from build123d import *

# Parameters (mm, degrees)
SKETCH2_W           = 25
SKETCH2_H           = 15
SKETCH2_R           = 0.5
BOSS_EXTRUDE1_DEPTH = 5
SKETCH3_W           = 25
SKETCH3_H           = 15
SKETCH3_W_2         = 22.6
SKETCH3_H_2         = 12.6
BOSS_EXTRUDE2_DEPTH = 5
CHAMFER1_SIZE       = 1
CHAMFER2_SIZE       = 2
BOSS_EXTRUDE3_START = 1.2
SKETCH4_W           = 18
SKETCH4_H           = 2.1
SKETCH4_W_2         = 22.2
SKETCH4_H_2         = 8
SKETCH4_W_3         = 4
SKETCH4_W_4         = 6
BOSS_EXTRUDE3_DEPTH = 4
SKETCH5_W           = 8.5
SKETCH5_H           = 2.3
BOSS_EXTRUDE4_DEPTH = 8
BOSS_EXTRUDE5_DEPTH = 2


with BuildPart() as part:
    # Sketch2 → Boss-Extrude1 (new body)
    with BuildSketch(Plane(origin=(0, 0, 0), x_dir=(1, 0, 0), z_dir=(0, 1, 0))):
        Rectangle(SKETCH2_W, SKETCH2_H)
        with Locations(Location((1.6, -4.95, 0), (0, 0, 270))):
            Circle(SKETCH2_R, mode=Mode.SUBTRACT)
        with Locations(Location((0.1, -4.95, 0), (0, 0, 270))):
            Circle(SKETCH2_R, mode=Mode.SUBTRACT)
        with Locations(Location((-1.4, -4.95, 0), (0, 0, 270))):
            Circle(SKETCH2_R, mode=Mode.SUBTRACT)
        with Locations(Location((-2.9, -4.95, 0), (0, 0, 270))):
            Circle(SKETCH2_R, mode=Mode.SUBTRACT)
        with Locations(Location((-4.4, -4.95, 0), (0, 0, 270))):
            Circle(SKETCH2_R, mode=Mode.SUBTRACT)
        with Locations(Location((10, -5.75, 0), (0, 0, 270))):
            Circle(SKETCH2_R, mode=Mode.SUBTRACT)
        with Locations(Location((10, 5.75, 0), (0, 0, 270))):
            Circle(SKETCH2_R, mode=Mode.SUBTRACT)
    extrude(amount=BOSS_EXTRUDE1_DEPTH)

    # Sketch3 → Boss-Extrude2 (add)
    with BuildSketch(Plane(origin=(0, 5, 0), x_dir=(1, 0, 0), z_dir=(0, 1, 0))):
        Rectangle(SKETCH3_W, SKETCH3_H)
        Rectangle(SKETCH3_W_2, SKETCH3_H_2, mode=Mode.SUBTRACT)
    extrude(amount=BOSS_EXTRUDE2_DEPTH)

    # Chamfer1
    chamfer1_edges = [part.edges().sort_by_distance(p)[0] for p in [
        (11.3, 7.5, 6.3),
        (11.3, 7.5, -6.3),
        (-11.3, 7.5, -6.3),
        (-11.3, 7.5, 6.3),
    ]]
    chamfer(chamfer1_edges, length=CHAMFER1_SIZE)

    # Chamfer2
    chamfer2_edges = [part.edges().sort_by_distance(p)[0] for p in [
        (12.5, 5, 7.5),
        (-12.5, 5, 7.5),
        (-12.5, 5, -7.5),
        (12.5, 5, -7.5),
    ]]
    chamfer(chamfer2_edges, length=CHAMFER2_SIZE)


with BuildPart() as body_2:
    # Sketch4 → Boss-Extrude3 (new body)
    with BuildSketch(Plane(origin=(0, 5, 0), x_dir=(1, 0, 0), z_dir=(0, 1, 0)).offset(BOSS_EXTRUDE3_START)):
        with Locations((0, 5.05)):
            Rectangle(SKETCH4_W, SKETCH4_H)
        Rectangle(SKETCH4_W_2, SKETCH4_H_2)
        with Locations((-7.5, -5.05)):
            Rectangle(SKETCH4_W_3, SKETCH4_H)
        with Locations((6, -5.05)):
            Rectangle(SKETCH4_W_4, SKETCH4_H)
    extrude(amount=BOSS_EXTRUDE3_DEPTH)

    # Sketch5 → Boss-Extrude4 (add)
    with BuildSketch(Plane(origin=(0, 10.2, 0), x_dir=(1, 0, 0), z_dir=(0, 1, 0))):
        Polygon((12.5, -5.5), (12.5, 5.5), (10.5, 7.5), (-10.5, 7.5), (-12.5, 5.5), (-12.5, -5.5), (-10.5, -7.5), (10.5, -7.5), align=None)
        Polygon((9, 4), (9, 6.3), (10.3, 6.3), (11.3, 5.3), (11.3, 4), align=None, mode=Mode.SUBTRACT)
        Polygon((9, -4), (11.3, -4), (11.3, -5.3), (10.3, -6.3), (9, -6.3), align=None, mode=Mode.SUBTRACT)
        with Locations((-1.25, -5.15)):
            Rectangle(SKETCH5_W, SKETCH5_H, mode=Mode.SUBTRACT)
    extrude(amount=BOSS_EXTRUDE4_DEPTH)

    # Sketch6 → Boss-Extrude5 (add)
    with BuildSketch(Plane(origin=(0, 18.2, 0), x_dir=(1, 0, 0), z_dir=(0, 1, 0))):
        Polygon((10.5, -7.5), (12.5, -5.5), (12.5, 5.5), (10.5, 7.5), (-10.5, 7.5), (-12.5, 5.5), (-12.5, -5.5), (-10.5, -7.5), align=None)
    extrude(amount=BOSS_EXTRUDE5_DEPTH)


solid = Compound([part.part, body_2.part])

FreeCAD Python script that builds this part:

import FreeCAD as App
import Part
import Sketcher

V = App.Vector


def edges_at(feature, points):
    """Names of the edges that pass closest to the given points."""
    edges = feature.Shape.Edges
    near = lambda p: min(range(len(edges)), key=lambda i: edges[i].distToShape(Part.Vertex(*p))[0])
    return sorted({f"Edge{near(p) + 1}" for p in points})

doc = App.newDocument("Part")
body = doc.addObject("PartDesign::Body", "Body")

sketch1 = body.newObject("Sketcher::SketchObject", "Sketch")
sketch1.AttachmentSupport = (doc.getObject("XZ_Plane"), [""])
sketch1.MapMode = "FlatFace"
sketch1.addGeometry(Part.LineSegment(V(-12.5, -7.5, 0), V(-12.5, 7.5, 0)), False)
sketch1.addGeometry(Part.LineSegment(V(-12.5, 7.5, 0), V(12.5, 7.5, 0)), False)
sketch1.addGeometry(Part.LineSegment(V(12.5, 7.5, 0), V(12.5, -7.5, 0)), False)
sketch1.addGeometry(Part.LineSegment(V(12.5, -7.5, 0), V(-12.5, -7.5, 0)), False)
sketch1.addGeometry(Part.Circle(V(-4.4, 5, 0), V(0, 0, 1), 0.5), False)
sketch1.addGeometry(Part.Circle(V(-2.9, 5, 0), V(0, 0, 1), 0.5), False)
sketch1.addGeometry(Part.Circle(V(-1.4, 5, 0), V(0, 0, 1), 0.5), False)
sketch1.addGeometry(Part.Circle(V(0.1, 5, 0), V(0, 0, 1), 0.5), False)
sketch1.addGeometry(Part.Circle(V(1.6, 5, 0), V(0, 0, 1), 0.5), False)
sketch1.addGeometry(Part.Circle(V(10, 5.8, 0), V(0, 0, 1), 0.5), False)
sketch1.addGeometry(Part.Circle(V(10, -5.8, 0), V(0, 0, 1), 0.5), False)
sketch1.addConstraint(Sketcher.Constraint("Coincident", 0, 2, 1, 1))
sketch1.addConstraint(Sketcher.Constraint("Coincident", 1, 2, 2, 1))
sketch1.addConstraint(Sketcher.Constraint("Coincident", 2, 2, 3, 1))
sketch1.addConstraint(Sketcher.Constraint("Coincident", 3, 2, 0, 1))
sketch1.addConstraint(Sketcher.Constraint("Vertical", 0))
sketch1.addConstraint(Sketcher.Constraint("Horizontal", 1))
sketch1.addConstraint(Sketcher.Constraint("Vertical", 2))
sketch1.addConstraint(Sketcher.Constraint("Horizontal", 3))
sketch1.addConstraint(Sketcher.Constraint("Equal", 4, 5))
sketch1.addConstraint(Sketcher.Constraint("Equal", 5, 6))
sketch1.addConstraint(Sketcher.Constraint("Equal", 6, 7))
sketch1.addConstraint(Sketcher.Constraint("Equal", 7, 8))
sketch1.addConstraint(Sketcher.Constraint("Equal", 8, 9))
sketch1.addConstraint(Sketcher.Constraint("Equal", 9, 10))
sketch1.addConstraint(Sketcher.Constraint("Symmetric", 0, 2, 2, 2, -1, 1))
sketch1.addConstraint(Sketcher.Constraint("Symmetric", 9, 3, 10, 3, -1))
sketch1.addConstraint(Sketcher.Constraint("Horizontal", 4, 3, 5, 3))
sketch1.addConstraint(Sketcher.Constraint("Horizontal", 5, 3, 6, 3))
sketch1.addConstraint(Sketcher.Constraint("Horizontal", 6, 3, 7, 3))
sketch1.addConstraint(Sketcher.Constraint("Horizontal", 7, 3, 8, 3))
sketch1.addConstraint(Sketcher.Constraint("Diameter", 4, 1.0))
sketch1.addConstraint(Sketcher.Constraint("DistanceX", 1, 1, 1, 2, 25.0))
sketch1.addConstraint(Sketcher.Constraint("DistanceY", 0, 1, 0, 2, 15.0))
sketch1.addConstraint(Sketcher.Constraint("DistanceX", -1, 1, 9, 3, 10.0))
sketch1.addConstraint(Sketcher.Constraint("DistanceX", 4, 3, 6, 3, 3.0))
sketch1.addConstraint(Sketcher.Constraint("DistanceX", 5, 3, 7, 3, 3.0))
sketch1.addConstraint(Sketcher.Constraint("DistanceX", 6, 3, 8, 3, 3.0))
sketch1.addConstraint(Sketcher.Constraint("DistanceX", 4, 3, -1, 1, 4.4))
sketch1.addConstraint(Sketcher.Constraint("DistanceX", 5, 3, -1, 1, 2.9))
sketch1.addConstraint(Sketcher.Constraint("DistanceY", 8, 3, 9, 3, 0.8))
sketch1.addConstraint(Sketcher.Constraint("DistanceY", 10, 3, 9, 3, 11.5))
pad1 = body.newObject("PartDesign::Pad", "Pad")
pad1.Profile = sketch1
pad1.Length = 5
pad1.Reversed = True

sketch2 = body.newObject("Sketcher::SketchObject", "Sketch001")
sketch2.AttachmentSupport = (doc.getObject("XZ_Plane"), [""])
sketch2.MapMode = "FlatFace"
sketch2.AttachmentOffset = App.Placement(V(0, 0, -5), App.Rotation())
sketch2.addGeometry(Part.LineSegment(V(-12, -8, 0), V(-12, 8, 0)), False)
sketch2.addGeometry(Part.LineSegment(V(-12, 8, 0), V(12, 8, 0)), False)
sketch2.addGeometry(Part.LineSegment(V(12, 8, 0), V(12, -8, 0)), False)
sketch2.addGeometry(Part.LineSegment(V(12, -8, 0), V(-12, -8, 0)), False)
sketch2.addGeometry(Part.LineSegment(V(11, 6, 0), V(-11, 6, 0)), False)
sketch2.addGeometry(Part.LineSegment(V(-11, 6, 0), V(-11, -6, 0)), False)
sketch2.addGeometry(Part.LineSegment(V(-11, -6, 0), V(11, -6, 0)), False)
sketch2.addGeometry(Part.LineSegment(V(11, -6, 0), V(11, 6, 0)), False)
sketch2.addConstraint(Sketcher.Constraint("Coincident", 0, 2, 1, 1))
sketch2.addConstraint(Sketcher.Constraint("Coincident", 1, 2, 2, 1))
sketch2.addConstraint(Sketcher.Constraint("Coincident", 2, 2, 3, 1))
sketch2.addConstraint(Sketcher.Constraint("Coincident", 3, 2, 0, 1))
sketch2.addConstraint(Sketcher.Constraint("Coincident", 4, 2, 5, 1))
sketch2.addConstraint(Sketcher.Constraint("Coincident", 5, 2, 6, 1))
sketch2.addConstraint(Sketcher.Constraint("Coincident", 6, 2, 7, 1))
sketch2.addConstraint(Sketcher.Constraint("Coincident", 7, 2, 4, 1))
sketch2.addConstraint(Sketcher.Constraint("Vertical", 0))
sketch2.addConstraint(Sketcher.Constraint("Horizontal", 1))
sketch2.addConstraint(Sketcher.Constraint("Vertical", 2))
sketch2.addConstraint(Sketcher.Constraint("Horizontal", 3))
sketch2.addConstraint(Sketcher.Constraint("Horizontal", 4))
sketch2.addConstraint(Sketcher.Constraint("Vertical", 5))
sketch2.addConstraint(Sketcher.Constraint("Horizontal", 6))
sketch2.addConstraint(Sketcher.Constraint("Vertical", 7))
sketch2.addConstraint(Sketcher.Constraint("Symmetric", 0, 2, 2, 2, -1, 1))
sketch2.addConstraint(Sketcher.Constraint("Symmetric", 4, 2, 6, 2, -1, 1))
sketch2.addConstraint(Sketcher.Constraint("DistanceX", 1, 1, 1, 2, 25.0))
sketch2.addConstraint(Sketcher.Constraint("DistanceY", 0, 1, 0, 2, 15.0))
sketch2.addConstraint(Sketcher.Constraint("DistanceX", 4, 2, 4, 1, 22.6))
sketch2.addConstraint(Sketcher.Constraint("DistanceY", 5, 2, 5, 1, 12.6))
pad2 = body.newObject("PartDesign::Pad", "Pad001")
pad2.Profile = sketch2
pad2.Length = 5
pad2.Reversed = True
doc.recompute()

chamfer = body.newObject("PartDesign::Chamfer", "Chamfer")
chamfer.Base = (pad2, edges_at(pad2, [
    (11.3, 7.5, 6.3),
    (11.3, 7.5, -6.3),
    (-11.3, 7.5, -6.3),
    (-11.3, 7.5, 6.3),
]))
chamfer.Size = 1
doc.recompute()

chamfer2 = body.newObject("PartDesign::Chamfer", "Chamfer001")
chamfer2.Base = (chamfer, edges_at(chamfer, [
    (12.5, 5, 7.5),
    (-12.5, 5, 7.5),
    (-12.5, 5, -7.5),
    (12.5, 5, -7.5),
]))
chamfer2.Size = 2
body2 = doc.addObject("PartDesign::Body", "Body001")

sketch3 = body2.newObject("Sketcher::SketchObject", "Sketch002")
sketch3.AttachmentSupport = (doc.getObject("XZ_Plane001"), [""])
sketch3.MapMode = "FlatFace"
sketch3.AttachmentOffset = App.Placement(V(0, 0, -6.2), App.Rotation())
sketch3.addGeometry(Part.LineSegment(V(-9, -6.1, 0), V(-9, -4, 0)), False)
sketch3.addGeometry(Part.LineSegment(V(-9, -4, 0), V(-11.1, -4, 0)), False)
sketch3.addGeometry(Part.LineSegment(V(-11.1, -4, 0), V(-11.1, 4, 0)), False)
sketch3.addGeometry(Part.LineSegment(V(-11.1, 4, 0), V(-9.5, 4, 0)), False)
sketch3.addGeometry(Part.LineSegment(V(-9.5, 4, 0), V(-9.5, 6.1, 0)), False)
sketch3.addGeometry(Part.LineSegment(V(-9.5, 6.1, 0), V(-5.5, 6.1, 0)), False)
sketch3.addGeometry(Part.LineSegment(V(-5.5, 6.1, 0), V(-5.5, 4, 0)), False)
sketch3.addGeometry(Part.LineSegment(V(-5.5, 4, 0), V(3, 4, 0)), False)
sketch3.addGeometry(Part.LineSegment(V(3, 4, 0), V(3, 6.1, 0)), False)
sketch3.addGeometry(Part.LineSegment(V(3, 6.1, 0), V(9, 6.1, 0)), False)
sketch3.addGeometry(Part.LineSegment(V(9, 6.1, 0), V(9, 4, 0)), False)
sketch3.addGeometry(Part.LineSegment(V(9, 4, 0), V(11.1, 4, 0)), False)
sketch3.addGeometry(Part.LineSegment(V(11.1, 4, 0), V(11.1, -4, 0)), False)
sketch3.addGeometry(Part.LineSegment(V(11.1, -4, 0), V(9, -4, 0)), False)
sketch3.addGeometry(Part.LineSegment(V(9, -4, 0), V(9, -6.1, 0)), False)
sketch3.addGeometry(Part.LineSegment(V(9, -6.1, 0), V(-9, -6.1, 0)), False)
sketch3.addConstraint(Sketcher.Constraint("Coincident", 0, 2, 1, 1))
sketch3.addConstraint(Sketcher.Constraint("Coincident", 1, 2, 2, 1))
sketch3.addConstraint(Sketcher.Constraint("Coincident", 2, 2, 3, 1))
sketch3.addConstraint(Sketcher.Constraint("Coincident", 3, 2, 4, 1))
sketch3.addConstraint(Sketcher.Constraint("Coincident", 4, 2, 5, 1))
sketch3.addConstraint(Sketcher.Constraint("Coincident", 5, 2, 6, 1))
sketch3.addConstraint(Sketcher.Constraint("Coincident", 6, 2, 7, 1))
sketch3.addConstraint(Sketcher.Constraint("Coincident", 7, 2, 8, 1))
sketch3.addConstraint(Sketcher.Constraint("Coincident", 8, 2, 9, 1))
sketch3.addConstraint(Sketcher.Constraint("Coincident", 9, 2, 10, 1))
sketch3.addConstraint(Sketcher.Constraint("Coincident", 10, 2, 11, 1))
sketch3.addConstraint(Sketcher.Constraint("Coincident", 11, 2, 12, 1))
sketch3.addConstraint(Sketcher.Constraint("Coincident", 12, 2, 13, 1))
sketch3.addConstraint(Sketcher.Constraint("Coincident", 13, 2, 14, 1))
sketch3.addConstraint(Sketcher.Constraint("Coincident", 14, 2, 15, 1))
sketch3.addConstraint(Sketcher.Constraint("Coincident", 15, 2, 0, 1))
sketch3.addConstraint(Sketcher.Constraint("Vertical", 0))
sketch3.addConstraint(Sketcher.Constraint("Horizontal", 1))
sketch3.addConstraint(Sketcher.Constraint("Vertical", 2))
sketch3.addConstraint(Sketcher.Constraint("Horizontal", 3))
sketch3.addConstraint(Sketcher.Constraint("Vertical", 4))
sketch3.addConstraint(Sketcher.Constraint("Horizontal", 5))
sketch3.addConstraint(Sketcher.Constraint("Vertical", 6))
sketch3.addConstraint(Sketcher.Constraint("Horizontal", 7))
sketch3.addConstraint(Sketcher.Constraint("Vertical", 8))
sketch3.addConstraint(Sketcher.Constraint("Horizontal", 9))
sketch3.addConstraint(Sketcher.Constraint("Vertical", 10))
sketch3.addConstraint(Sketcher.Constraint("Horizontal", 11))
sketch3.addConstraint(Sketcher.Constraint("Vertical", 12))
sketch3.addConstraint(Sketcher.Constraint("Horizontal", 13))
sketch3.addConstraint(Sketcher.Constraint("Vertical", 14))
sketch3.addConstraint(Sketcher.Constraint("Horizontal", 15))
sketch3.addConstraint(Sketcher.Constraint("Symmetric", 0, 2, 10, 2, -1, 1))
sketch3.addConstraint(Sketcher.Constraint("Symmetric", 2, 2, 12, 2, -1, 1))
sketch3.addConstraint(Sketcher.Constraint("Symmetric", 0, 2, 13, 2, -2))
sketch3.addConstraint(Sketcher.Constraint("Horizontal", 3, 2, 6, 2))
sketch3.addConstraint(Sketcher.Constraint("Horizontal", 5, 2, 8, 2))
sketch3.addConstraint(Sketcher.Constraint("Equal", 13, 0))
sketch3.addConstraint(Sketcher.Constraint("Equal", 0, 4))
sketch3.addConstraint(Sketcher.Constraint("DistanceX", 5, 1, 5, 2, 4.0))
sketch3.addConstraint(Sketcher.Constraint("DistanceX", 9, 1, 9, 2, 6.0))
sketch3.addConstraint(Sketcher.Constraint("DistanceX", 15, 2, 15, 1, 18.0))
sketch3.addConstraint(Sketcher.Constraint("DistanceY", 2, 1, 2, 2, 8.0))
sketch3.addConstraint(Sketcher.Constraint("DistanceX", 1, 2, 1, 1, 2.1))
sketch3.addConstraint(Sketcher.Constraint("DistanceX", 3, 1, 3, 2, 1.6))
pad3 = body2.newObject("PartDesign::Pad", "Pad002")
pad3.Profile = sketch3
pad3.Length = 4
pad3.Reversed = True

sketch4 = body2.newObject("Sketcher::SketchObject", "Sketch003")
sketch4.AttachmentSupport = (doc.getObject("XZ_Plane001"), [""])
sketch4.MapMode = "FlatFace"
sketch4.AttachmentOffset = App.Placement(V(0, 0, -10.2), App.Rotation())
sketch4.addGeometry(Part.LineSegment(V(12.5, 5.5, 0), V(12.5, -5.5, 0)), False)
sketch4.addGeometry(Part.LineSegment(V(12.5, -5.5, 0), V(10.5, -7.5, 0)), False)
sketch4.addGeometry(Part.LineSegment(V(10.5, -7.5, 0), V(-10.5, -7.5, 0)), False)
sketch4.addGeometry(Part.LineSegment(V(-10.5, -7.5, 0), V(-12.5, -5.5, 0)), False)
sketch4.addGeometry(Part.LineSegment(V(-12.5, -5.5, 0), V(-12.5, 5.5, 0)), False)
sketch4.addGeometry(Part.LineSegment(V(-12.5, 5.5, 0), V(-10.5, 7.5, 0)), False)
sketch4.addGeometry(Part.LineSegment(V(-10.5, 7.5, 0), V(10.5, 7.5, 0)), False)
sketch4.addGeometry(Part.LineSegment(V(10.5, 7.5, 0), V(12.5, 5.5, 0)), False)
sketch4.addGeometry(Part.LineSegment(V(3, 6.3, 0), V(-5.5, 6.3, 0)), False)
sketch4.addGeometry(Part.LineSegment(V(-5.5, 6.3, 0), V(-5.5, 4, 0)), False)
sketch4.addGeometry(Part.LineSegment(V(-5.5, 4, 0), V(3, 4, 0)), False)
sketch4.addGeometry(Part.LineSegment(V(3, 4, 0), V(3, 6.3, 0)), False)
sketch4.addGeometry(Part.LineSegment(V(9, 6.3, 0), V(9, 4, 0)), False)
sketch4.addGeometry(Part.LineSegment(V(9, 4, 0), V(11.3, 4, 0)), False)
sketch4.addGeometry(Part.LineSegment(V(11.3, 4, 0), V(11.3, 5.3, 0)), False)
sketch4.addGeometry(Part.LineSegment(V(11.3, 5.3, 0), V(10.3, 6.3, 0)), False)
sketch4.addGeometry(Part.LineSegment(V(10.3, 6.3, 0), V(9, 6.3, 0)), False)
sketch4.addGeometry(Part.LineSegment(V(11.3, -4, 0), V(9, -4, 0)), False)
sketch4.addGeometry(Part.LineSegment(V(9, -4, 0), V(9, -6.3, 0)), False)
sketch4.addGeometry(Part.LineSegment(V(9, -6.3, 0), V(10.3, -6.3, 0)), False)
sketch4.addGeometry(Part.LineSegment(V(10.3, -6.3, 0), V(11.3, -5.3, 0)), False)
sketch4.addGeometry(Part.LineSegment(V(11.3, -5.3, 0), V(11.3, -4, 0)), False)
sketch4.addConstraint(Sketcher.Constraint("Coincident", 0, 2, 1, 1))
sketch4.addConstraint(Sketcher.Constraint("Coincident", 1, 2, 2, 1))
sketch4.addConstraint(Sketcher.Constraint("Coincident", 2, 2, 3, 1))
sketch4.addConstraint(Sketcher.Constraint("Coincident", 3, 2, 4, 1))
sketch4.addConstraint(Sketcher.Constraint("Coincident", 4, 2, 5, 1))
sketch4.addConstraint(Sketcher.Constraint("Coincident", 5, 2, 6, 1))
sketch4.addConstraint(Sketcher.Constraint("Coincident", 6, 2, 7, 1))
sketch4.addConstraint(Sketcher.Constraint("Coincident", 7, 2, 0, 1))
sketch4.addConstraint(Sketcher.Constraint("Coincident", 8, 2, 9, 1))
sketch4.addConstraint(Sketcher.Constraint("Coincident", 9, 2, 10, 1))
sketch4.addConstraint(Sketcher.Constraint("Coincident", 10, 2, 11, 1))
sketch4.addConstraint(Sketcher.Constraint("Coincident", 11, 2, 8, 1))
sketch4.addConstraint(Sketcher.Constraint("Coincident", 12, 2, 13, 1))
sketch4.addConstraint(Sketcher.Constraint("Coincident", 13, 2, 14, 1))
sketch4.addConstraint(Sketcher.Constraint("Coincident", 14, 2, 15, 1))
sketch4.addConstraint(Sketcher.Constraint("Coincident", 15, 2, 16, 1))
sketch4.addConstraint(Sketcher.Constraint("Coincident", 16, 2, 12, 1))
sketch4.addConstraint(Sketcher.Constraint("Coincident", 17, 2, 18, 1))
sketch4.addConstraint(Sketcher.Constraint("Coincident", 18, 2, 19, 1))
sketch4.addConstraint(Sketcher.Constraint("Coincident", 19, 2, 20, 1))
sketch4.addConstraint(Sketcher.Constraint("Coincident", 20, 2, 21, 1))
sketch4.addConstraint(Sketcher.Constraint("Coincident", 21, 2, 17, 1))
sketch4.addConstraint(Sketcher.Constraint("Vertical", 0))
sketch4.addConstraint(Sketcher.Constraint("Horizontal", 2))
sketch4.addConstraint(Sketcher.Constraint("Vertical", 4))
sketch4.addConstraint(Sketcher.Constraint("Horizontal", 6))
sketch4.addConstraint(Sketcher.Constraint("Horizontal", 8))
sketch4.addConstraint(Sketcher.Constraint("Vertical", 9))
sketch4.addConstraint(Sketcher.Constraint("Horizontal", 10))
sketch4.addConstraint(Sketcher.Constraint("Vertical", 11))
sketch4.addConstraint(Sketcher.Constraint("Vertical", 12))
sketch4.addConstraint(Sketcher.Constraint("Horizontal", 13))
sketch4.addConstraint(Sketcher.Constraint("Vertical", 14))
sketch4.addConstraint(Sketcher.Constraint("Horizontal", 16))
sketch4.addConstraint(Sketcher.Constraint("Horizontal", 17))
sketch4.addConstraint(Sketcher.Constraint("Vertical", 18))
sketch4.addConstraint(Sketcher.Constraint("Horizontal", 19))
sketch4.addConstraint(Sketcher.Constraint("Vertical", 21))
sketch4.addConstraint(Sketcher.Constraint("Symmetric", 0, 2, 4, 2, -1, 1))
sketch4.addConstraint(Sketcher.Constraint("Symmetric", 1, 2, 5, 2, -1, 1))
sketch4.addConstraint(Sketcher.Constraint("Symmetric", 12, 2, 17, 2, -1))
sketch4.addConstraint(Sketcher.Constraint("Symmetric", 15, 2, 19, 2, -1))
sketch4.addConstraint(Sketcher.Constraint("Symmetric", 14, 2, 20, 2, -1))
sketch4.addConstraint(Sketcher.Constraint("Perpendicular", 1, 3))
sketch4.addConstraint(Sketcher.Constraint("Perpendicular", 5, 7))
sketch4.addConstraint(Sketcher.Constraint("Parallel", 7, 15))
sketch4.addConstraint(Sketcher.Constraint("Perpendicular", 15, 20))
sketch4.addConstraint(Sketcher.Constraint("Horizontal", 0, 2, 3, 2))
sketch4.addConstraint(Sketcher.Constraint("Horizontal", 4, 2, 7, 2))
sketch4.addConstraint(Sketcher.Constraint("Horizontal", 10, 2, 12, 2))
sketch4.addConstraint(Sketcher.Constraint("Horizontal", 11, 2, 15, 2))
sketch4.addConstraint(Sketcher.Constraint("Equal", 17, 9))
sketch4.addConstraint(Sketcher.Constraint("DistanceX", 2, 2, 2, 1, 21.0))
sketch4.addConstraint(Sketcher.Constraint("DistanceY", 0, 2, 0, 1, 11.0))
sketch4.addConstraint(Sketcher.Constraint("DistanceX", 8, 2, 8, 1, 8.5))
sketch4.addConstraint(Sketcher.Constraint("DistanceX", 13, 1, 13, 2, 2.3))
sketch4.addConstraint(Sketcher.Constraint("DistanceX", 16, 2, 16, 1, 1.3))
sketch4.addConstraint(Sketcher.Constraint("DistanceY", -1, 1, 9, 2, 4.0))
sketch4.addConstraint(Sketcher.Constraint("DistanceX", -1, 1, 10, 2, 3.0))
sketch4.addConstraint(Sketcher.Constraint("DistanceX", -1, 1, 12, 2, 9.0))
sketch4.addConstraint(Sketcher.Constraint("DistanceX", 1, 2, 0, 2, 2.0))
pad4 = body2.newObject("PartDesign::Pad", "Pad003")
pad4.Profile = sketch4
pad4.Length = 8
pad4.Reversed = True

sketch5 = body2.newObject("Sketcher::SketchObject", "Sketch004")
sketch5.AttachmentSupport = (doc.getObject("XZ_Plane001"), [""])
sketch5.MapMode = "FlatFace"
sketch5.AttachmentOffset = App.Placement(V(0, 0, -18.2), App.Rotation())
sketch5.addGeometry(Part.LineSegment(V(10.5, 7.5, 0), V(12.5, 5.5, 0)), False)
sketch5.addGeometry(Part.LineSegment(V(12.5, 5.5, 0), V(12.5, -5.5, 0)), False)
sketch5.addGeometry(Part.LineSegment(V(12.5, -5.5, 0), V(10.5, -7.5, 0)), False)
sketch5.addGeometry(Part.LineSegment(V(10.5, -7.5, 0), V(-10.5, -7.5, 0)), False)
sketch5.addGeometry(Part.LineSegment(V(-10.5, -7.5, 0), V(-12.5, -5.5, 0)), False)
sketch5.addGeometry(Part.LineSegment(V(-12.5, -5.5, 0), V(-12.5, 5.5, 0)), False)
sketch5.addGeometry(Part.LineSegment(V(-12.5, 5.5, 0), V(-10.5, 7.5, 0)), False)
sketch5.addGeometry(Part.LineSegment(V(-10.5, 7.5, 0), V(10.5, 7.5, 0)), False)
sketch5.addConstraint(Sketcher.Constraint("Coincident", 0, 2, 1, 1))
sketch5.addConstraint(Sketcher.Constraint("Coincident", 1, 2, 2, 1))
sketch5.addConstraint(Sketcher.Constraint("Coincident", 2, 2, 3, 1))
sketch5.addConstraint(Sketcher.Constraint("Coincident", 3, 2, 4, 1))
sketch5.addConstraint(Sketcher.Constraint("Coincident", 4, 2, 5, 1))
sketch5.addConstraint(Sketcher.Constraint("Coincident", 5, 2, 6, 1))
sketch5.addConstraint(Sketcher.Constraint("Coincident", 6, 2, 7, 1))
sketch5.addConstraint(Sketcher.Constraint("Coincident", 7, 2, 0, 1))
sketch5.addConstraint(Sketcher.Constraint("Vertical", 1))
sketch5.addConstraint(Sketcher.Constraint("Horizontal", 3))
sketch5.addConstraint(Sketcher.Constraint("Vertical", 5))
sketch5.addConstraint(Sketcher.Constraint("Horizontal", 7))
sketch5.addConstraint(Sketcher.Constraint("Symmetric", 0, 2, 4, 2, -1, 1))
sketch5.addConstraint(Sketcher.Constraint("Symmetric", 2, 2, 6, 2, -1, 1))
sketch5.addConstraint(Sketcher.Constraint("Perpendicular", 0, 2))
sketch5.addConstraint(Sketcher.Constraint("Perpendicular", 2, 4))
sketch5.addConstraint(Sketcher.Constraint("Perpendicular", 4, 6))
sketch5.addConstraint(Sketcher.Constraint("Horizontal", 1, 2, 4, 2))
sketch5.addConstraint(Sketcher.Constraint("Vertical", 3, 2, 6, 2))
sketch5.addConstraint(Sketcher.Constraint("DistanceX", 3, 2, 3, 1, 21.0))
sketch5.addConstraint(Sketcher.Constraint("DistanceY", 1, 2, 1, 1, 11.0))
sketch5.addConstraint(Sketcher.Constraint("DistanceX", 2, 2, 1, 2, 2.0))
pad5 = body2.newObject("PartDesign::Pad", "Pad004")
pad5.Profile = sketch5
pad5.Length = 2
pad5.Reversed = True

doc.recompute()
